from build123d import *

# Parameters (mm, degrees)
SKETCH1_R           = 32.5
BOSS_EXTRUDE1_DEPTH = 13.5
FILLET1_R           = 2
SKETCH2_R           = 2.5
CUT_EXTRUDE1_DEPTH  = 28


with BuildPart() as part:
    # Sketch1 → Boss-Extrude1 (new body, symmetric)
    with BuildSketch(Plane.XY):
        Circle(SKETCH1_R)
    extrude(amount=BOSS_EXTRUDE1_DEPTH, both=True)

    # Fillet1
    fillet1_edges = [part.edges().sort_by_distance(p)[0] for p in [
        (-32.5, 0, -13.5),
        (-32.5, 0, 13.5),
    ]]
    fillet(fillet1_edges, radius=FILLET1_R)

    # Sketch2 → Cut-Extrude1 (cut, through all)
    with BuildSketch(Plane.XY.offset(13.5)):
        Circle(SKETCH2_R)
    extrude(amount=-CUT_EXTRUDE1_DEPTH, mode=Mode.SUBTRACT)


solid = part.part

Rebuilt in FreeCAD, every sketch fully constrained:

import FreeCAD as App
import Part
import Sketcher


def edges_at(feature, points):
    """Names of the edges that pass closest to the given points."""
    edges = feature.Shape.Edges
    near = lambda p: min(range(len(edges)), key=lambda i: edges[i].distToShape(Part.Vertex(*p))[0])
    return sorted({f"Edge{near(p) + 1}" for p in points})

doc = App.newDocument("Part")
body = doc.addObject("PartDesign::Body", "Body")

# Sketch on XY plane
sketch1 = body.newObject("Sketcher::SketchObject", "Sketch")
sketch1.AttachmentSupport = (doc.getObject("XY_Plane"), [""])
sketch1.MapMode = "FlatFace"
sketch1.addGeometry(Part.Circle(App.Vector(0, 0, 0), App.Vector(0, 0, 1), 32.5), False)
sketch1.addConstraint(Sketcher.Constraint("Coincident", 0, 3, -1, 1))
sketch1.addConstraint(Sketcher.Constraint("Diameter", 0, 65.0))
pad1 = body.newObject("PartDesign::Pad", "Pad")
pad1.Profile = sketch1
pad1.Length = 27
pad1.Midplane = True
doc.recompute()

fillet = body.newObject("PartDesign::Fillet", "Fillet")
fillet.Base = (pad1, edges_at(pad1, [(-32.5, 0, -13.5), (-32.5, 0, 13.5)]))
fillet.Radius = 2

# Sketch on XY plane
sketch2 = body.newObject("Sketcher::SketchObject", "Sketch001")
sketch2.AttachmentSupport = (doc.getObject("XY_Plane"), [""])
sketch2.MapMode = "FlatFace"
sketch2.AttachmentOffset = App.Placement(App.Vector(0, 0, 13.5), App.Rotation())
sketch2.addGeometry(Part.Circle(App.Vector(0, 0, 0), App.Vector(0, 0, 1), 2.5), False)
sketch2.addConstraint(Sketcher.Constraint("Coincident", 0, 3, -1, 1))
sketch2.addConstraint(Sketcher.Constraint("Diameter", 0, 5.0))
pocket1 = body.newObject("PartDesign::Pocket", "Pocket")
pocket1.Profile = sketch2
pocket1.Type = "ThroughAll"

doc.recompute()
